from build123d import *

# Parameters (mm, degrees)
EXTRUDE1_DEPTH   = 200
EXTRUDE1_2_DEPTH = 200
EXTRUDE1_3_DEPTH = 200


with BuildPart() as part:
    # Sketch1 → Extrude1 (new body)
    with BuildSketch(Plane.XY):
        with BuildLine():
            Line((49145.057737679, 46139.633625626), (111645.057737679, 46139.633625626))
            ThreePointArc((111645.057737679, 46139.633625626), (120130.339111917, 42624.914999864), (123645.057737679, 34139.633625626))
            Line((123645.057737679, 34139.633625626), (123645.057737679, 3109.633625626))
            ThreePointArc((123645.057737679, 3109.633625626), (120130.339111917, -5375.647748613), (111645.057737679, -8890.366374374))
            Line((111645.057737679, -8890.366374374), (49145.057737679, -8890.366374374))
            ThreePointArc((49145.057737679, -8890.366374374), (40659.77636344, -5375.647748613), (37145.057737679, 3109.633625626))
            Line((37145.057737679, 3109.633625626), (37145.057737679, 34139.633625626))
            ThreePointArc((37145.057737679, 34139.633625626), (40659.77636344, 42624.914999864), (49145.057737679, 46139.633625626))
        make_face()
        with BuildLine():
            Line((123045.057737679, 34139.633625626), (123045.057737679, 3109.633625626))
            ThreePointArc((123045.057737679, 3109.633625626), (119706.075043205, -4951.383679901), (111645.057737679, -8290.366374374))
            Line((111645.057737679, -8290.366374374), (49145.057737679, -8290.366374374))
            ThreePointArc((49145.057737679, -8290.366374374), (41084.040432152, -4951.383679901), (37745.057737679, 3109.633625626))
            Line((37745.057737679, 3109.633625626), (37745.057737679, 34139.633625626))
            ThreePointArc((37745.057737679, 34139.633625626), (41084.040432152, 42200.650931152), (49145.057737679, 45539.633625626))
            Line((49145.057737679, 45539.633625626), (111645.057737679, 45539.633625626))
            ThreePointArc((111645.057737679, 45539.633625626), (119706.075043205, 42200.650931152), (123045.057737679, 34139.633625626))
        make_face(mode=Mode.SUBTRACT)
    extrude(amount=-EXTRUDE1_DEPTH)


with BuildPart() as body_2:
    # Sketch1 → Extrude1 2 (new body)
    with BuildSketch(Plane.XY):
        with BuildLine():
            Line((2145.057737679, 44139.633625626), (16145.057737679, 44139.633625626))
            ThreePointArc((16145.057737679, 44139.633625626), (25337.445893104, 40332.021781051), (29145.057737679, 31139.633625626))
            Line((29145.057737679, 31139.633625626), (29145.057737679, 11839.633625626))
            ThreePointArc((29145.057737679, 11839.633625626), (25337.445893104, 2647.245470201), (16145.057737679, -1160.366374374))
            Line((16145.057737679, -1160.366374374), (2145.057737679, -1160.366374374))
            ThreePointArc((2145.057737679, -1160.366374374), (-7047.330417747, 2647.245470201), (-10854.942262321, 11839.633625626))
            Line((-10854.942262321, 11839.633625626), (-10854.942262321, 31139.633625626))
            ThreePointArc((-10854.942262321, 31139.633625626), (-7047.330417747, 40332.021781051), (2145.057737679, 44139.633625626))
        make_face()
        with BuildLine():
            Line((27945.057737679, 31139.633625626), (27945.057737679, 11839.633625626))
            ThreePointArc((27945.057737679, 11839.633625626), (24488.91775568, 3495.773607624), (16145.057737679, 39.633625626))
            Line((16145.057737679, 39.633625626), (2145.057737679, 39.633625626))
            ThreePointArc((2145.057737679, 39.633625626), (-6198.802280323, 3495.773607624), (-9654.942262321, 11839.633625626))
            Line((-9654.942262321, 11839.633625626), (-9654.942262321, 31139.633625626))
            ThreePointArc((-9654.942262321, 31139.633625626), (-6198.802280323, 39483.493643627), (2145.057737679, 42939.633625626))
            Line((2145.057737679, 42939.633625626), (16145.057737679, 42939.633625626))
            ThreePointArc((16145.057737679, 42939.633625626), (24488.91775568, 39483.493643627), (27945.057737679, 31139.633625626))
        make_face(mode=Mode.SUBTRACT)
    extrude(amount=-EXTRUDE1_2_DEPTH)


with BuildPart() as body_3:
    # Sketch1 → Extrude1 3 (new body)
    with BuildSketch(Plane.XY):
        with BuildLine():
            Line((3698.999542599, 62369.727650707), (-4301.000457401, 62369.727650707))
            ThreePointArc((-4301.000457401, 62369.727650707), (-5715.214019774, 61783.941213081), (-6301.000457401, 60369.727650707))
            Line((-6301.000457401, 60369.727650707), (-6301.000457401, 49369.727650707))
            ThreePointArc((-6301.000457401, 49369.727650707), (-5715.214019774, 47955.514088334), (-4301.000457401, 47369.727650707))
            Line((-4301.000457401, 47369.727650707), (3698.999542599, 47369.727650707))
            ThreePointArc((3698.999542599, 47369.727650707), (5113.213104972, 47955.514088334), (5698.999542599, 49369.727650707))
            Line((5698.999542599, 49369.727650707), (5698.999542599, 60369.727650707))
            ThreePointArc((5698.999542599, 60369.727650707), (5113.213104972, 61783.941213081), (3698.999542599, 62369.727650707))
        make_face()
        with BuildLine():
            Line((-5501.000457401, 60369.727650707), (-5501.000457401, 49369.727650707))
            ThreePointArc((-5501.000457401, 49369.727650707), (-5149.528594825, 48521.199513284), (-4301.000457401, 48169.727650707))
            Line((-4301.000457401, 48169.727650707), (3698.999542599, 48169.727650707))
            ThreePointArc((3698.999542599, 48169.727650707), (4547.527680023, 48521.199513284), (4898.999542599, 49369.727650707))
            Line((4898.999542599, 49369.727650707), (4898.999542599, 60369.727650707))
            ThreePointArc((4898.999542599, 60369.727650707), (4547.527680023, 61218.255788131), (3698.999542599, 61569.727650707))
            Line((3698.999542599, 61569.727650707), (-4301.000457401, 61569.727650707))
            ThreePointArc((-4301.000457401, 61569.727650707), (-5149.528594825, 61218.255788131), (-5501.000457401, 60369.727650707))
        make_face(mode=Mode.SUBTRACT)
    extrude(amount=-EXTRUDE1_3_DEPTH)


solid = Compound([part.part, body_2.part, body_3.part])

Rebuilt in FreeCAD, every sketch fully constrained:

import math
import FreeCAD as App
import Part
import Sketcher

V = App.Vector

doc = App.newDocument("Part")
body = doc.addObject("PartDesign::Body", "Body")

sketch1 = body.newObject("Sketcher::SketchObject", "Sketch")
sketch1.AttachmentSupport = (doc.getObject("XY_Plane"), [""])
sketch1.MapMode = "FlatFace"
sketch1.addGeometry(Part.LineSegment(V(111645.057738, 46139.633626, 0), V(49145.057738, 46139.633626, 0)), False)
sketch1.addGeometry(Part.ArcOfCircle(Part.Circle(V(49145.057738, 34139.633626, 0), V(0, 0, 1), 12000), math.radians(90), math.radians(180)), False)
sketch1.addGeometry(Part.LineSegment(V(37145.057738, 34139.633626, 0), V(37145.057738, 3109.633626, 0)), False)
sketch1.addGeometry(Part.ArcOfCircle(Part.Circle(V(49145.057738, 3109.633626, 0), V(0, 0, 1), 12000), math.radians(180), math.radians(270)), False)
sketch1.addGeometry(Part.LineSegment(V(49145.057738, -8890.366374, 0), V(111645.057738, -8890.366374, 0)), False)
sketch1.addGeometry(Part.ArcOfCircle(Part.Circle(V(111645.057738, 3109.633626, 0), V(0, 0, 1), 12000), math.radians(-90), math.radians(0)), False)
sketch1.addGeometry(Part.LineSegment(V(123645.057738, 3109.633626, 0), V(123645.057738, 34139.633626, 0)), False)
sketch1.addGeometry(Part.ArcOfCircle(Part.Circle(V(111645.057738, 34139.633626, 0), V(0, 0, 1), 12000), math.radians(0), math.radians(90)), False)
sketch1.addGeometry(Part.LineSegment(V(123045.057738, 34139.633626, 0), V(123045.057738, 3109.633626, 0)), False)
sketch1.addGeometry(Part.ArcOfCircle(Part.Circle(V(111645.057738, 3109.633626, 0), V(0, 0, 1), 11400), math.radians(-90), math.radians(0)), False)
sketch1.addGeometry(Part.LineSegment(V(111645.057738, -8290.366374, 0), V(49145.057738, -8290.366374, 0)), False)
sketch1.addGeometry(Part.ArcOfCircle(Part.Circle(V(49145.057738, 3109.633626, 0), V(0, 0, 1), 11400), math.radians(180), math.radians(270)), False)
sketch1.addGeometry(Part.LineSegment(V(37745.057738, 3109.633626, 0), V(37745.057738, 34139.633626, 0)), False)
sketch1.addGeometry(Part.ArcOfCircle(Part.Circle(V(49145.057738, 34139.633626, 0), V(0, 0, 1), 11400), math.radians(90), math.radians(180)), False)
sketch1.addGeometry(Part.LineSegment(V(49145.057738, 45539.633626, 0), V(111645.057738, 45539.633626, 0)), False)
sketch1.addGeometry(Part.ArcOfCircle(Part.Circle(V(111645.057738, 34139.633626, 0), V(0, 0, 1), 11400), math.radians(0), math.radians(90)), False)
sketch1.addConstraint(Sketcher.Constraint("Coincident", 0, 2, 1, 1))
sketch1.addConstraint(Sketcher.Constraint("Coincident", 1, 2, 2, 1))
sketch1.addConstraint(Sketcher.Constraint("Coincident", 2, 2, 3, 1))
sketch1.addConstraint(Sketcher.Constraint("Coincident", 3, 2, 4, 1))
sketch1.addConstraint(Sketcher.Constraint("Coincident", 4, 2, 5, 1))
sketch1.addConstraint(Sketcher.Constraint("Coincident", 5, 2, 6, 1))
sketch1.addConstraint(Sketcher.Constraint("Coincident", 6, 2, 7, 1))
sketch1.addConstraint(Sketcher.Constraint("Coincident", 7, 2, 0, 1))
sketch1.addConstraint(Sketcher.Constraint("Coincident", 8, 2, 9, 2))
sketch1.addConstraint(Sketcher.Constraint("Coincident", 9, 1, 10, 1))
sketch1.addConstraint(Sketcher.Constraint("Coincident", 10, 2, 11, 2))
sketch1.addConstraint(Sketcher.Constraint("Coincident", 11, 1, 12, 1))
sketch1.addConstraint(Sketcher.Constraint("Coincident", 12, 2, 13, 2))
sketch1.addConstraint(Sketcher.Constraint("Coincident", 13, 1, 14, 1))
sketch1.addConstraint(Sketcher.Constraint("Coincident", 14, 2, 15, 2))
sketch1.addConstraint(Sketcher.Constraint("Coincident", 15, 1, 8, 1))
sketch1.addConstraint(Sketcher.Constraint("Horizontal", 0))
sketch1.addConstraint(Sketcher.Constraint("Vertical", 2))
sketch1.addConstraint(Sketcher.Constraint("Horizontal", 4))
sketch1.addConstraint(Sketcher.Constraint("Vertical", 6))
sketch1.addConstraint(Sketcher.Constraint("Vertical", 8))
sketch1.addConstraint(Sketcher.Constraint("Horizontal", 10))
sketch1.addConstraint(Sketcher.Constraint("Vertical", 12))
sketch1.addConstraint(Sketcher.Constraint("Horizontal", 14))
sketch1.addConstraint(Sketcher.Constraint("Coincident", 9, 3, 5, 3))
sketch1.addConstraint(Sketcher.Constraint("Coincident", 11, 3, 3, 3))
sketch1.addConstraint(Sketcher.Constraint("Coincident", 13, 3, 1, 3))
sketch1.addConstraint(Sketcher.Constraint("Equal", 1, 3))
sketch1.addConstraint(Sketcher.Constraint("Equal", 3, 5))
sketch1.addConstraint(Sketcher.Constraint("Equal", 5, 7))
sketch1.addConstraint(Sketcher.Constraint("Equal", 13, 15))
sketch1.addConstraint(Sketcher.Constraint("Horizontal", 11, 3, 2, 2))
sketch1.addConstraint(Sketcher.Constraint("Horizontal", 6, 2, 12, 2))
sketch1.addConstraint(Sketcher.Constraint("Vertical", 13, 3, 0, 2))
sketch1.addConstraint(Sketcher.Constraint("Vertical", 15, 3, 4, 2))
sketch1.addConstraint(Sketcher.Constraint("Equal", 0, 4))
sketch1.addConstraint(Sketcher.Constraint("Equal", 4, 10))
sketch1.addConstraint(Sketcher.Constraint("Equal", 10, 14))
sketch1.addConstraint(Sketcher.Constraint("Equal", 2, 6))
sketch1.addConstraint(Sketcher.Constraint("Equal", 6, 8))
sketch1.addConstraint(Sketcher.Constraint("Equal", 8, 12))
sketch1.addConstraint(Sketcher.Constraint("Radius", 1, 12000.0))
sketch1.addConstraint(Sketcher.Constraint("Radius", 9, 11400.0))
sketch1.addConstraint(Sketcher.Constraint("DistanceX", 0, 2, 0, 1, 62500.0))
sketch1.addConstraint(Sketcher.Constraint("DistanceY", 2, 2, 2, 1, 31030.0))
sketch1.addConstraint(Sketcher.Constraint("DistanceY", 3, 3, 1, 3, 31030.0))
sketch1.addConstraint(Sketcher.Constraint("DistanceX", 3, 3, 5, 3, 62500.0))
sketch1.addConstraint(Sketcher.Constraint("DistanceY", 5, 3, 6, 2, 31030.0))
sketch1.addConstraint(Sketcher.Constraint("DistanceY", 4, 2, 8, 2, 12000.0))
sketch1.addConstraint(Sketcher.Constraint("DistanceX", 2, 2, 10, 2, 12000.0))
sketch1.addConstraint(Sketcher.Constraint("DistanceX", 14, 2, 6, 2, 12000.0))
sketch1.addConstraint(Sketcher.Constraint("DistanceX", -1, 1, 1, 3, 49145.057738))
sketch1.addConstraint(Sketcher.Constraint("DistanceY", -1, 1, 1, 3, 34139.633626))
pad1 = body.newObject("PartDesign::Pad", "Pad")
pad1.Profile = sketch1
pad1.Length = 200
pad1.Reversed = True
body2 = doc.addObject("PartDesign::Body", "Body001")

sketch2 = body2.newObject("Sketcher::SketchObject", "Sketch001")
sketch2.AttachmentSupport = (doc.getObject("XY_Plane001"), [""])
sketch2.MapMode = "FlatFace"
sketch2.addGeometry(Part.LineSegment(V(16145.057738, 44139.633626, 0), V(2145.057738, 44139.633626, 0)), False)
sketch2.addGeometry(Part.ArcOfCircle(Part.Circle(V(2145.057738, 31139.633626, 0), V(0, 0, 1), 13000), math.radians(90), math.radians(180)), False)
sketch2.addGeometry(Part.LineSegment(V(-10854.942262, 31139.633626, 0), V(-10854.942262, 11839.633626, 0)), False)
sketch2.addGeometry(Part.ArcOfCircle(Part.Circle(V(2145.057738, 11839.633626, 0), V(0, 0, 1), 13000), math.radians(180), math.radians(270)), False)
sketch2.addGeometry(Part.LineSegment(V(2145.057738, -1160.366374, 0), V(16145.057738, -1160.366374, 0)), False)
sketch2.addGeometry(Part.ArcOfCircle(Part.Circle(V(16145.057738, 11839.633626, 0), V(0, 0, 1), 13000), math.radians(-90), math.radians(0)), False)
sketch2.addGeometry(Part.LineSegment(V(29145.057738, 11839.633626, 0), V(29145.057738, 31139.633626, 0)), False)
sketch2.addGeometry(Part.ArcOfCircle(Part.Circle(V(16145.057738, 31139.633626, 0), V(0, 0, 1), 13000), math.radians(0), math.radians(90)), False)
sketch2.addGeometry(Part.LineSegment(V(27945.057738, 31139.633626, 0), V(27945.057738, 11839.633626, 0)), False)
sketch2.addGeometry(Part.ArcOfCircle(Part.Circle(V(16145.057738, 11839.633626, 0), V(0, 0, 1), 11800), math.radians(-90), math.radians(0)), False)
sketch2.addGeometry(Part.LineSegment(V(16145.057738, 39.633626, 0), V(2145.057738, 39.633626, 0)), False)
sketch2.addGeometry(Part.ArcOfCircle(Part.Circle(V(2145.057738, 11839.633626, 0), V(0, 0, 1), 11800), math.radians(180), math.radians(270)), False)
sketch2.addGeometry(Part.LineSegment(V(-9654.942262, 11839.633626, 0), V(-9654.942262, 31139.633626, 0)), False)
sketch2.addGeometry(Part.ArcOfCircle(Part.Circle(V(2145.057738, 31139.633626, 0), V(0, 0, 1), 11800), math.radians(90), math.radians(180)), False)
sketch2.addGeometry(Part.LineSegment(V(2145.057738, 42939.633626, 0), V(16145.057738, 42939.633626, 0)), False)
sketch2.addGeometry(Part.ArcOfCircle(Part.Circle(V(16145.057738, 31139.633626, 0), V(0, 0, 1), 11800), math.radians(0), math.radians(90)), False)
sketch2.addConstraint(Sketcher.Constraint("Coincident", 0, 2, 1, 1))
sketch2.addConstraint(Sketcher.Constraint("Coincident", 1, 2, 2, 1))
sketch2.addConstraint(Sketcher.Constraint("Coincident", 2, 2, 3, 1))
sketch2.addConstraint(Sketcher.Constraint("Coincident", 3, 2, 4, 1))
sketch2.addConstraint(Sketcher.Constraint("Coincident", 4, 2, 5, 1))
sketch2.addConstraint(Sketcher.Constraint("Coincident", 5, 2, 6, 1))
sketch2.addConstraint(Sketcher.Constraint("Coincident", 6, 2, 7, 1))
sketch2.addConstraint(Sketcher.Constraint("Coincident", 7, 2, 0, 1))
sketch2.addConstraint(Sketcher.Constraint("Coincident", 8, 2, 9, 2))
sketch2.addConstraint(Sketcher.Constraint("Coincident", 9, 1, 10, 1))
sketch2.addConstraint(Sketcher.Constraint("Coincident", 10, 2, 11, 2))
sketch2.addConstraint(Sketcher.Constraint("Coincident", 11, 1, 12, 1))
sketch2.addConstraint(Sketcher.Constraint("Coincident", 12, 2, 13, 2))
sketch2.addConstraint(Sketcher.Constraint("Coincident", 13, 1, 14, 1))
sketch2.addConstraint(Sketcher.Constraint("Coincident", 14, 2, 15, 2))
sketch2.addConstraint(Sketcher.Constraint("Coincident", 15, 1, 8, 1))
sketch2.addConstraint(Sketcher.Constraint("Horizontal", 0))
sketch2.addConstraint(Sketcher.Constraint("Vertical", 2))
sketch2.addConstraint(Sketcher.Constraint("Horizontal", 4))
sketch2.addConstraint(Sketcher.Constraint("Vertical", 6))
sketch2.addConstraint(Sketcher.Constraint("Vertical", 8))
sketch2.addConstraint(Sketcher.Constraint("Horizontal", 10))
sketch2.addConstraint(Sketcher.Constraint("Vertical", 12))
sketch2.addConstraint(Sketcher.Constraint("Horizontal", 14))
sketch2.addConstraint(Sketcher.Constraint("Coincident", 9, 3, 5, 3))
sketch2.addConstraint(Sketcher.Constraint("Coincident", 11, 3, 3, 3))
sketch2.addConstraint(Sketcher.Constraint("Coincident", 13, 3, 1, 3))
sketch2.addConstraint(Sketcher.Constraint("Equal", 1, 3))
sketch2.addConstraint(Sketcher.Constraint("Equal", 3, 5))
sketch2.addConstraint(Sketcher.Constraint("Equal", 5, 7))
sketch2.addConstraint(Sketcher.Constraint("Equal", 13, 15))
sketch2.addConstraint(Sketcher.Constraint("Horizontal", 11, 3, 2, 2))
sketch2.addConstraint(Sketcher.Constraint("Horizontal", 6, 2, 12, 2))
sketch2.addConstraint(Sketcher.Constraint("Vertical", 13, 3, 0, 2))
sketch2.addConstraint(Sketcher.Constraint("Vertical", 15, 3, 4, 2))
sketch2.addConstraint(Sketcher.Constraint("Equal", 0, 4))
sketch2.addConstraint(Sketcher.Constraint("Equal", 4, 10))
sketch2.addConstraint(Sketcher.Constraint("Equal", 10, 14))
sketch2.addConstraint(Sketcher.Constraint("Equal", 2, 6))
sketch2.addConstraint(Sketcher.Constraint("Equal", 6, 8))
sketch2.addConstraint(Sketcher.Constraint("Equal", 8, 12))
sketch2.addConstraint(Sketcher.Constraint("Radius", 1, 13000.0))
sketch2.addConstraint(Sketcher.Constraint("Radius", 9, 11800.0))
sketch2.addConstraint(Sketcher.Constraint("DistanceX", 0, 2, 0, 1, 14000.0))
sketch2.addConstraint(Sketcher.Constraint("DistanceY", 2, 2, 2, 1, 19300.0))
sketch2.addConstraint(Sketcher.Constraint("DistanceY", 3, 3, 1, 3, 19300.0))
sketch2.addConstraint(Sketcher.Constraint("DistanceX", 3, 3, 5, 3, 14000.0))
sketch2.addConstraint(Sketcher.Constraint("DistanceY", 5, 3, 6, 2, 19300.0))
sketch2.addConstraint(Sketcher.Constraint("DistanceY", 4, 2, 8, 2, 13000.0))
sketch2.addConstraint(Sketcher.Constraint("DistanceX", 10, 2, 4, 2, 14000.0))
sketch2.addConstraint(Sketcher.Constraint("DistanceX", 0, 2, 14, 2, 14000.0))
sketch2.addConstraint(Sketcher.Constraint("DistanceX", -1, 1, 1, 3, 2145.057738))
sketch2.addConstraint(Sketcher.Constraint("DistanceY", -1, 1, 1, 3, 31139.633626))
pad2 = body2.newObject("PartDesign::Pad", "Pad001")
pad2.Profile = sketch2
pad2.Length = 200
pad2.Reversed = True
body3 = doc.addObject("PartDesign::Body", "Body002")

sketch3 = body3.newObject("Sketcher::SketchObject", "Sketch002")
sketch3.AttachmentSupport = (doc.getObject("XY_Plane002"), [""])
sketch3.MapMode = "FlatFace"
sketch3.addGeometry(Part.LineSegment(V(3698.999543, 62369.727651, 0), V(-4301.000457, 62369.727651, 0)), False)
sketch3.addGeometry(Part.ArcOfCircle(Part.Circle(V(-4301.000457, 60369.727651, 0), V(0, 0, 1), 2000), math.radians(90), math.radians(180)), False)
sketch3.addGeometry(Part.LineSegment(V(-6301.000457, 60369.727651, 0), V(-6301.000457, 49369.727651, 0)), False)
sketch3.addGeometry(Part.ArcOfCircle(Part.Circle(V(-4301.000457, 49369.727651, 0), V(0, 0, 1), 2000), math.radians(180), math.radians(270)), False)
sketch3.addGeometry(Part.LineSegment(V(-4301.000457, 47369.727651, 0), V(3698.999543, 47369.727651, 0)), False)
sketch3.addGeometry(Part.ArcOfCircle(Part.Circle(V(3698.999543, 49369.727651, 0), V(0, 0, 1), 2000), math.radians(-90), math.radians(0)), False)
sketch3.addGeometry(Part.LineSegment(V(5698.999543, 49369.727651, 0), V(5698.999543, 60369.727651, 0)), False)
sketch3.addGeometry(Part.ArcOfCircle(Part.Circle(V(3698.999543, 60369.727651, 0), V(0, 0, 1), 2000), math.radians(0), math.radians(90)), False)
sketch3.addGeometry(Part.LineSegment(V(-5501.000457, 49369.727651, 0), V(-5501.000457, 60369.727651, 0)), False)
sketch3.addGeometry(Part.ArcOfCircle(Part.Circle(V(-4301.000457, 60369.727651, 0), V(0, 0, 1), 1200), math.radians(90), math.radians(180)), False)
sketch3.addGeometry(Part.LineSegment(V(-4301.000457, 61569.727651, 0), V(3698.999543, 61569.727651, 0)), False)
sketch3.addGeometry(Part.ArcOfCircle(Part.Circle(V(3698.999543, 60369.727651, 0), V(0, 0, 1), 1200), math.radians(0), math.radians(90)), False)
sketch3.addGeometry(Part.LineSegment(V(4898.999543, 60369.727651, 0), V(4898.999543, 49369.727651, 0)), False)
sketch3.addGeometry(Part.ArcOfCircle(Part.Circle(V(3698.999543, 49369.727651, 0), V(0, 0, 1), 1200), math.radians(-90), math.radians(0)), False)
sketch3.addGeometry(Part.LineSegment(V(3698.999543, 48169.727651, 0), V(-4301.000457, 48169.727651, 0)), False)
sketch3.addGeometry(Part.ArcOfCircle(Part.Circle(V(-4301.000457, 49369.727651, 0), V(0, 0, 1), 1200), math.radians(-180), math.radians(-90)), False)
sketch3.addConstraint(Sketcher.Constraint("Coincident", 0, 2, 1, 1))
sketch3.addConstraint(Sketcher.Constraint("Coincident", 1, 2, 2, 1))
sketch3.addConstraint(Sketcher.Constraint("Coincident", 2, 2, 3, 1))
sketch3.addConstraint(Sketcher.Constraint("Coincident", 3, 2, 4, 1))
sketch3.addConstraint(Sketcher.Constraint("Coincident", 4, 2, 5, 1))
sketch3.addConstraint(Sketcher.Constraint("Coincident", 5, 2, 6, 1))
sketch3.addConstraint(Sketcher.Constraint("Coincident", 6, 2, 7, 1))
sketch3.addConstraint(Sketcher.Constraint("Coincident", 7, 2, 0, 1))
sketch3.addConstraint(Sketcher.Constraint("Coincident", 8, 2, 9, 2))
sketch3.addConstraint(Sketcher.Constraint("Coincident", 9, 1, 10, 1))
sketch3.addConstraint(Sketcher.Constraint("Coincident", 10, 2, 11, 2))
sketch3.addConstraint(Sketcher.Constraint("Coincident", 11, 1, 12, 1))
sketch3.addConstraint(Sketcher.Constraint("Coincident", 12, 2, 13, 2))
sketch3.addConstraint(Sketcher.Constraint("Coincident", 13, 1, 14, 1))
sketch3.addConstraint(Sketcher.Constraint("Coincident", 14, 2, 15, 2))
sketch3.addConstraint(Sketcher.Constraint("Coincident", 15, 1, 8, 1))
sketch3.addConstraint(Sketcher.Constraint("Horizontal", 0))
sketch3.addConstraint(Sketcher.Constraint("Vertical", 2))
sketch3.addConstraint(Sketcher.Constraint("Horizontal", 4))
sketch3.addConstraint(Sketcher.Constraint("Vertical", 6))
sketch3.addConstraint(Sketcher.Constraint("Vertical", 8))
sketch3.addConstraint(Sketcher.Constraint("Horizontal", 10))
sketch3.addConstraint(Sketcher.Constraint("Vertical", 12))
sketch3.addConstraint(Sketcher.Constraint("Horizontal", 14))
sketch3.addConstraint(Sketcher.Constraint("Coincident", 9, 3, 1, 3))
sketch3.addConstraint(Sketcher.Constraint("Coincident", 11, 3, 7, 3))
sketch3.addConstraint(Sketcher.Constraint("Coincident", 13, 3, 5, 3))
sketch3.addConstraint(Sketcher.Constraint("Equal", 1, 3))
sketch3.addConstraint(Sketcher.Constraint("Equal", 3, 5))
sketch3.addConstraint(Sketcher.Constraint("Equal", 5, 7))
sketch3.addConstraint(Sketcher.Constraint("Equal", 13, 15))
sketch3.addConstraint(Sketcher.Constraint("Horizontal", 15, 3, 2, 2))
sketch3.addConstraint(Sketcher.Constraint("Horizontal", 6, 2, 8, 2))
sketch3.addConstraint(Sketcher.Constraint("Vertical", 15, 3, 0, 2))
sketch3.addConstraint(Sketcher.Constraint("Vertical", 13, 3, 4, 2))
sketch3.addConstraint(Sketcher.Constraint("Equal", 0, 4))
sketch3.addConstraint(Sketcher.Constraint("Equal", 4, 10))
sketch3.addConstraint(Sketcher.Constraint("Equal", 10, 14))
sketch3.addConstraint(Sketcher.Constraint("Equal", 2, 6))
sketch3.addConstraint(Sketcher.Constraint("Equal", 6, 8))
sketch3.addConstraint(Sketcher.Constraint("Equal", 8, 12))
sketch3.addConstraint(Sketcher.Constraint("Radius", 1, 2000.0))
sketch3.addConstraint(Sketcher.Constraint("Radius", 9, 1200.0))
sketch3.addConstraint(Sketcher.Constraint("DistanceX", 0, 2, 0, 1, 8000.0))
sketch3.addConstraint(Sketcher.Constraint("DistanceY", 2, 2, 2, 1, 11000.0))
sketch3.addConstraint(Sketcher.Constraint("DistanceY", 3, 3, 1, 3, 11000.0))
sketch3.addConstraint(Sketcher.Constraint("DistanceX", 3, 3, 5, 3, 8000.0))
sketch3.addConstraint(Sketcher.Constraint("DistanceY", 6, 2, 0, 2, 2000.0))
sketch3.addConstraint(Sketcher.Constraint("DistanceX", 10, 2, 6, 2, 2000.0))
sketch3.addConstraint(Sketcher.Constraint("DistanceY", 4, 2, 12, 2, 2000.0))
sketch3.addConstraint(Sketcher.Constraint("DistanceX", 2, 2, 14, 2, 2000.0))
sketch3.addConstraint(Sketcher.Constraint("DistanceY", -1, 1, 1, 3, 60369.727651))
sketch3.addConstraint(Sketcher.Constraint("DistanceX", 1, 3, -1, 1, 4301.000457))
pad3 = body3.newObject("PartDesign::Pad", "Pad002")
pad3.Profile = sketch3
pad3.Length = 200
pad3.Reversed = True

doc.recompute()
